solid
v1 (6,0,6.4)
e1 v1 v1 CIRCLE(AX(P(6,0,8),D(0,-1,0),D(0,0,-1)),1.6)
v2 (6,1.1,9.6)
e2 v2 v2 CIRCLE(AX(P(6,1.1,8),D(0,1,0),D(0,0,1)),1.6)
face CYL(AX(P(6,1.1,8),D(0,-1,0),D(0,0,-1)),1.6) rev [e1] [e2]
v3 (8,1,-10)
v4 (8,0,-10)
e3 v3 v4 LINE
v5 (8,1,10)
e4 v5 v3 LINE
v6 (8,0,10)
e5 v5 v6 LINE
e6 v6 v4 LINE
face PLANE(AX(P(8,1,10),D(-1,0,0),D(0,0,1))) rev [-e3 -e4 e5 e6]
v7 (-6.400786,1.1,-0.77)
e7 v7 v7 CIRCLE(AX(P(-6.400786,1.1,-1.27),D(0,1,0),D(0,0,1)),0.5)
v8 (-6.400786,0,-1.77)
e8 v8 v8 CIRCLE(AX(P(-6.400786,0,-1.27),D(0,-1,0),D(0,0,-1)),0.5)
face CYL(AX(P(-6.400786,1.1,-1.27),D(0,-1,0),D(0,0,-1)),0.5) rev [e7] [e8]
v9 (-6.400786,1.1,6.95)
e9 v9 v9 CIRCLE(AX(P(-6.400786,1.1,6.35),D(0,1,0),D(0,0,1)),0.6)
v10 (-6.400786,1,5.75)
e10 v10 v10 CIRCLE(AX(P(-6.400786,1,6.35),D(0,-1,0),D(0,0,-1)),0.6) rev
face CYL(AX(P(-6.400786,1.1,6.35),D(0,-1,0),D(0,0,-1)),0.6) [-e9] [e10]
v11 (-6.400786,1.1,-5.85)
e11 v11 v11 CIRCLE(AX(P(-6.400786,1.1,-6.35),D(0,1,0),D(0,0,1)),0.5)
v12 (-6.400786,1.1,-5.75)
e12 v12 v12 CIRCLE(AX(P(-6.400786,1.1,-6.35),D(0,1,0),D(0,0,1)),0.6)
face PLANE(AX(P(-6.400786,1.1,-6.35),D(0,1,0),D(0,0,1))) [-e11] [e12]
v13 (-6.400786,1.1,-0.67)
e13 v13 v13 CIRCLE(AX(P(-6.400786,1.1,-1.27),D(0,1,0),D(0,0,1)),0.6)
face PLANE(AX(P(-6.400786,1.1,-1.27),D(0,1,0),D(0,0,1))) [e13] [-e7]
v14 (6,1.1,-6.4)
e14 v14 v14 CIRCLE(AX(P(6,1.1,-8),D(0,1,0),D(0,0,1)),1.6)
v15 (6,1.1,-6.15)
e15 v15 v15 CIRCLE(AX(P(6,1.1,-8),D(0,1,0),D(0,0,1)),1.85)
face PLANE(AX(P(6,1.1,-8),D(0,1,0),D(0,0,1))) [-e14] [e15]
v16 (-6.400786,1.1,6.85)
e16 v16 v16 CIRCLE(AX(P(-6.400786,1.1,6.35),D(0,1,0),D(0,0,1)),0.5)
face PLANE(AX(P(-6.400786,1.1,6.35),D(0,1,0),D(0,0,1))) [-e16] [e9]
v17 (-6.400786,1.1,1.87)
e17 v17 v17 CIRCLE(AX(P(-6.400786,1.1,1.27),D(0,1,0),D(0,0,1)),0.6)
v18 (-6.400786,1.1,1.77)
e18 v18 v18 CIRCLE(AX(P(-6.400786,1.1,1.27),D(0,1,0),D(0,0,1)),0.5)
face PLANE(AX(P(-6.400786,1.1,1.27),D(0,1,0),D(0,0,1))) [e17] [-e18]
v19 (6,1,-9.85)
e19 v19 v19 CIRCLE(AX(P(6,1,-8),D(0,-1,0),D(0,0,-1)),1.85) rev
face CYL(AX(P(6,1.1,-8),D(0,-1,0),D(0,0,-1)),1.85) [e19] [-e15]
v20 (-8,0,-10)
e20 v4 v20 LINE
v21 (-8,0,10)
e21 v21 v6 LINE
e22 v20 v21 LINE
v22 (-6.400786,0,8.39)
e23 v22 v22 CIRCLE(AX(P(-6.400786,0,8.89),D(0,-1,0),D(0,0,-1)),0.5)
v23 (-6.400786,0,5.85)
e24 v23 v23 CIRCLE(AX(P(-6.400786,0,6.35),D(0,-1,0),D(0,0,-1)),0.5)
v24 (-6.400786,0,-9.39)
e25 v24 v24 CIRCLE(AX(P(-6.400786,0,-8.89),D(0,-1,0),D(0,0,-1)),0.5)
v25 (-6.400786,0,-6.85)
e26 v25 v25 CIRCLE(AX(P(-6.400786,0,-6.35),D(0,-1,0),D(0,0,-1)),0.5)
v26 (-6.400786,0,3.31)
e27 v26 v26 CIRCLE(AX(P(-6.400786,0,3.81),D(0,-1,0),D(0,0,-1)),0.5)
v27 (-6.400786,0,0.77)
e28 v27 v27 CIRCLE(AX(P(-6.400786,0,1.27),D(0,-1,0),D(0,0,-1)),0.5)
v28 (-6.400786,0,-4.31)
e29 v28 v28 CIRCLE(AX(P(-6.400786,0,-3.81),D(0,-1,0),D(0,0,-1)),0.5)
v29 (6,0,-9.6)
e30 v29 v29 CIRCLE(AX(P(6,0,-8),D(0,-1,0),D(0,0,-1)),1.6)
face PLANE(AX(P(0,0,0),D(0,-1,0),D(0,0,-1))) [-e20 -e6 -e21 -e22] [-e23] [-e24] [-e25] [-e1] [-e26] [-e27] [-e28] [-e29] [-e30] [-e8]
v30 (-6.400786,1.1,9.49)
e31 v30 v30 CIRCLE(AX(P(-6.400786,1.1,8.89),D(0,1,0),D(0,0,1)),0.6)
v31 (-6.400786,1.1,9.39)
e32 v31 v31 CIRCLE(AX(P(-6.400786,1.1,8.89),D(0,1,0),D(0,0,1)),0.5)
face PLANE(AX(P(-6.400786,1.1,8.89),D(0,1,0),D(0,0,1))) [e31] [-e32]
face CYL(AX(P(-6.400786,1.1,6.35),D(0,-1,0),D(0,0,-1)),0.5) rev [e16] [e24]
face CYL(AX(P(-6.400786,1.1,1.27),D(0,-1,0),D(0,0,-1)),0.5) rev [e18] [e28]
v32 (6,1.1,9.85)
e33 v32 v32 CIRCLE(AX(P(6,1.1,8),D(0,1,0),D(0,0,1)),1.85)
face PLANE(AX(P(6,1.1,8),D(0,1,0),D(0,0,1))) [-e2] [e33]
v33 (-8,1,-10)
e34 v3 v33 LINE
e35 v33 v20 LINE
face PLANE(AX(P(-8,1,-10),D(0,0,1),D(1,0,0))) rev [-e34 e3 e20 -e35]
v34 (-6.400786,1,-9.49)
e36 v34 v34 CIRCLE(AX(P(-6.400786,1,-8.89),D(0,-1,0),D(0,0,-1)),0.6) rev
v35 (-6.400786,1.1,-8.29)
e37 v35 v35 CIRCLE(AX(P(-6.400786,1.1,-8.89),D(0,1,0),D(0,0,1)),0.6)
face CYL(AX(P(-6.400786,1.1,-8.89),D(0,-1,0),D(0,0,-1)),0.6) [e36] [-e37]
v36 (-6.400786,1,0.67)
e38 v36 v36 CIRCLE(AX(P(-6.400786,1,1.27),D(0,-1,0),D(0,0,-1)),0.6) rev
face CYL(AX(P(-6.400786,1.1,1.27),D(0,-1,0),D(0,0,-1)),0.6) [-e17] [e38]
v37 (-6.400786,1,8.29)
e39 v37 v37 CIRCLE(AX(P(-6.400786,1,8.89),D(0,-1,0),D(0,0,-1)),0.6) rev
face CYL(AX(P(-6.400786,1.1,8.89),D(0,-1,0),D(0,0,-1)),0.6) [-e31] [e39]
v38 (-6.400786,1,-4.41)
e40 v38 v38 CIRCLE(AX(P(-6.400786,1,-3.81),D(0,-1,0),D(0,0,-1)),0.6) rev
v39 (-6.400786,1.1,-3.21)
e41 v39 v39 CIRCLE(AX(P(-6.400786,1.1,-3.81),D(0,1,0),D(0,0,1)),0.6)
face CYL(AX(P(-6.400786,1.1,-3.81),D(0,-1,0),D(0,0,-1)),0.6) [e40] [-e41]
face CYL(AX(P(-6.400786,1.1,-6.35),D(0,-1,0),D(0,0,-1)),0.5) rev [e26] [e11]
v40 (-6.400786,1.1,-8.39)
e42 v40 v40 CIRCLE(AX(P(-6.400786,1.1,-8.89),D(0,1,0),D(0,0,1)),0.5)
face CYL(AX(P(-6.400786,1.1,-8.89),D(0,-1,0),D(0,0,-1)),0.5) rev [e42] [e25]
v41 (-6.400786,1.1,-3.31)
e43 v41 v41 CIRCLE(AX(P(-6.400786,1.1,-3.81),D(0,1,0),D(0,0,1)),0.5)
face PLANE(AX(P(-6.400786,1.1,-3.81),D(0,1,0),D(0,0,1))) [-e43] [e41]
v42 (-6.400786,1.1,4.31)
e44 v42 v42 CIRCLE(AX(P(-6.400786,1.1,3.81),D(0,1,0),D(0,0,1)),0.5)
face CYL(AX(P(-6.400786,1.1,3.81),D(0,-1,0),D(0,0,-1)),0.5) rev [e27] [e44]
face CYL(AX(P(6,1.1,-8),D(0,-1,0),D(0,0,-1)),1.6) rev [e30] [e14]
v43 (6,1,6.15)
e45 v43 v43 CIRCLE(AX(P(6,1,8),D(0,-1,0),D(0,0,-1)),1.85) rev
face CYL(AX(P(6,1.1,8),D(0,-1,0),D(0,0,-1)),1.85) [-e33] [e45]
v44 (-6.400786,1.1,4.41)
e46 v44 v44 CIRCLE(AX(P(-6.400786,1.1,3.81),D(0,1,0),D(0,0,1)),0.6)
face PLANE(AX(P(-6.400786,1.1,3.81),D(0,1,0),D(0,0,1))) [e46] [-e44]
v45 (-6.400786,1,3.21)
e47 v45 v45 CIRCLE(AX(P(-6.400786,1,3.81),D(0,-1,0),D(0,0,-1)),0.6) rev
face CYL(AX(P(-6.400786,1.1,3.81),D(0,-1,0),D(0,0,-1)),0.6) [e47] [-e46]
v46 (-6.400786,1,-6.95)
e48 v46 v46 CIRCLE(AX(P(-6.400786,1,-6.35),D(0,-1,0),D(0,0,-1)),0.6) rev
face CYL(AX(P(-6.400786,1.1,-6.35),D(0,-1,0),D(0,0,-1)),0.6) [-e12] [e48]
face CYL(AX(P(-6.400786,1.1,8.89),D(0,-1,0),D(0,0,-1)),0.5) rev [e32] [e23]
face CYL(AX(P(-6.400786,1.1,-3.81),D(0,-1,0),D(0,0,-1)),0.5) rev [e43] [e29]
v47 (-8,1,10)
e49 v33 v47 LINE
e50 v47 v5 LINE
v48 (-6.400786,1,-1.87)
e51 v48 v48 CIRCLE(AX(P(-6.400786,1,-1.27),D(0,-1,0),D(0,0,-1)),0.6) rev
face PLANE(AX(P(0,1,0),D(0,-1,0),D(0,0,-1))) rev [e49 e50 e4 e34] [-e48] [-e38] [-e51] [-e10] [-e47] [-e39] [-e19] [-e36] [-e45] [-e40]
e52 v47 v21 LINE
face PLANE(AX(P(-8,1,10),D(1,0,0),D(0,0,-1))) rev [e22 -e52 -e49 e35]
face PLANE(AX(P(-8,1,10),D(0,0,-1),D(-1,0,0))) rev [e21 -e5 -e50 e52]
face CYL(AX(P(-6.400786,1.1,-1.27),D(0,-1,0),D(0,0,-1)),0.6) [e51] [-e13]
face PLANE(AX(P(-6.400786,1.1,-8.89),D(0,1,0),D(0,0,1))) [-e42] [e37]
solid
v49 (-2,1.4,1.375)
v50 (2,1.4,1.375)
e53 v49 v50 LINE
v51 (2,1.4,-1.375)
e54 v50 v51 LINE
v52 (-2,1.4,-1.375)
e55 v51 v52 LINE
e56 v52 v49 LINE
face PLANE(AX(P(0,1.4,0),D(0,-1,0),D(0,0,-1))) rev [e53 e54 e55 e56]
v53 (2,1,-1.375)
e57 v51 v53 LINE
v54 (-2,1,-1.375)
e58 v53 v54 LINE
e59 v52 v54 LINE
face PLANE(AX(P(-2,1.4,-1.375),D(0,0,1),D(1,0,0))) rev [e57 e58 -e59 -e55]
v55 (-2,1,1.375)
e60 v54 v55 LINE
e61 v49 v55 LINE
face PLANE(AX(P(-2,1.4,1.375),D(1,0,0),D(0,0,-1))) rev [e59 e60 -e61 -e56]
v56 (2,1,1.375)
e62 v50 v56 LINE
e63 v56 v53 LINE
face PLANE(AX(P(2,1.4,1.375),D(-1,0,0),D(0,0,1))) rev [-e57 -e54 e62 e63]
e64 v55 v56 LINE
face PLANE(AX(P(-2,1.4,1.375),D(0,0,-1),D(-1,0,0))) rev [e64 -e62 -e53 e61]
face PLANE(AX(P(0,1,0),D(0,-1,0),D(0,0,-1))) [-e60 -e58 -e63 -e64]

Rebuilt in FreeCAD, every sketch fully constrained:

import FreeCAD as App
import Part
import Sketcher

V = App.Vector
Q = App.Units.Quantity


def add_polygon(sketch, points):
    """Adds a closed chain of lines whose ends are joined by coincident constraints."""
    first, n = sketch.GeometryCount, len(points)
    for a, b in zip(points, points[1:] + points[:1]):
        sketch.addGeometry(Part.LineSegment(App.Vector(*a, 0), App.Vector(*b, 0)), False)
    for i in range(n):
        sketch.addConstraint(Sketcher.Constraint("Coincident", first + i, 2, first + (i + 1) % n, 1))

doc = App.newDocument("Part")
body = doc.addObject("PartDesign::Body", "Body")

# Sketch on XZ plane
sketch1 = body.newObject("Sketcher::SketchObject", "Sketch")
sketch1.AttachmentSupport = (doc.getObject("XZ_Plane"), [""])
sketch1.MapMode = "FlatFace"
add_polygon(sketch1, [(-8, -10), (-8, 10), (8, 10), (8, -10)])  # lines 0-3
sketch1.addConstraint(Sketcher.Constraint("Vertical", 0))
sketch1.addConstraint(Sketcher.Constraint("Horizontal", 1))
sketch1.addConstraint(Sketcher.Constraint("Vertical", 2))
sketch1.addConstraint(Sketcher.Constraint("Horizontal", 3))
sketch1.addConstraint(Sketcher.Constraint("Symmetric", 0, 2, 2, 2, -1, 1))
sketch1.addConstraint(Sketcher.Constraint("DistanceX", 1, 1, 1, 2, Q("16 mm")))
sketch1.addConstraint(Sketcher.Constraint("DistanceY", 0, 1, 0, 2, Q("20 mm")))
pad1 = body.newObject("PartDesign::Pad", "Pad")
pad1.Profile = sketch1
pad1.Length = 1
pad1.Reversed = True

# Sketch on XZ plane
sketch2 = body.newObject("Sketcher::SketchObject", "Sketch001")
sketch2.AttachmentSupport = (doc.getObject("XZ_Plane"), [""])
sketch2.MapMode = "FlatFace"
sketch2.AttachmentOffset = App.Placement(V(0, 0, -1), App.Rotation())
sketch2.addGeometry(Part.Circle(V(-6.4, 8.9, 0), V(0, 0, 1), 0.6), False)
sketch2.addGeometry(Part.Circle(V(-6.4, 8.9, 0), V(0, 0, 1), 0.5), False)
sketch2.addGeometry(Part.Circle(V(-6.4, 6.3, 0), V(0, 0, 1), 0.6), False)
sketch2.addGeometry(Part.Circle(V(-6.4, 6.3, 0), V(0, 0, 1), 0.5), False)
sketch2.addGeometry(Part.Circle(V(-6.4, 3.8, 0), V(0, 0, 1), 0.6), False)
sketch2.addGeometry(Part.Circle(V(-6.4, 3.8, 0), V(0, 0, 1), 0.5), False)
sketch2.addGeometry(Part.Circle(V(-6.4, 1.3, 0), V(0, 0, 1), 0.6), False)
sketch2.addGeometry(Part.Circle(V(-6.4, 1.3, 0), V(0, 0, 1), 0.5), False)
sketch2.addGeometry(Part.Circle(V(-6.4, -1.3, 0), V(0, 0, 1), 0.6), False)
sketch2.addGeometry(Part.Circle(V(-6.4, -1.3, 0), V(0, 0, 1), 0.5), False)
sketch2.addGeometry(Part.Circle(V(-6.4, -3.8, 0), V(0, 0, 1), 0.6), False)
sketch2.addGeometry(Part.Circle(V(-6.4, -3.8, 0), V(0, 0, 1), 0.5), False)
sketch2.addGeometry(Part.Circle(V(-6.4, -6.3, 0), V(0, 0, 1), 0.6), False)
sketch2.addGeometry(Part.Circle(V(-6.4, -6.3, 0), V(0, 0, 1), 0.5), False)
sketch2.addGeometry(Part.Circle(V(-6.4, -8.9, 0), V(0, 0, 1), 0.6), False)
sketch2.addGeometry(Part.Circle(V(-6.4, -8.9, 0), V(0, 0, 1), 0.5), False)
sketch2.addConstraint(Sketcher.Constraint("Coincident", 1, 3, 0, 3))
sketch2.addConstraint(Sketcher.Constraint("Coincident", 3, 3, 2, 3))
sketch2.addConstraint(Sketcher.Constraint("Coincident", 5, 3, 4, 3))
sketch2.addConstraint(Sketcher.Constraint("Coincident", 7, 3, 6, 3))
sketch2.addConstraint(Sketcher.Constraint("Coincident", 9, 3, 8, 3))
sketch2.addConstraint(Sketcher.Constraint("Coincident", 11, 3, 10, 3))
sketch2.addConstraint(Sketcher.Constraint("Coincident", 13, 3, 12, 3))
sketch2.addConstraint(Sketcher.Constraint("Coincident", 15, 3, 14, 3))
sketch2.addConstraint(Sketcher.Constraint("Equal", 0, 2))
sketch2.addConstraint(Sketcher.Constraint("Equal", 1, 3))
sketch2.addConstraint(Sketcher.Constraint("Equal", 2, 4))
sketch2.addConstraint(Sketcher.Constraint("Equal", 3, 5))
sketch2.addConstraint(Sketcher.Constraint("Equal", 4, 6))
sketch2.addConstraint(Sketcher.Constraint("Equal", 5, 7))
sketch2.addConstraint(Sketcher.Constraint("Equal", 6, 8))
sketch2.addConstraint(Sketcher.Constraint("Equal", 7, 9))
sketch2.addConstraint(Sketcher.Constraint("Equal", 8, 10))
sketch2.addConstraint(Sketcher.Constraint("Equal", 9, 11))
sketch2.addConstraint(Sketcher.Constraint("Equal", 10, 12))
sketch2.addConstraint(Sketcher.Constraint("Equal", 11, 13))
sketch2.addConstraint(Sketcher.Constraint("Equal", 12, 14))
sketch2.addConstraint(Sketcher.Constraint("Equal", 13, 15))
sketch2.addConstraint(Sketcher.Constraint("Symmetric", 6, 3, 8, 3, -1))
sketch2.addConstraint(Sketcher.Constraint("Symmetric", 4, 3, 10, 3, -1))
sketch2.addConstraint(Sketcher.Constraint("Symmetric", 2, 3, 12, 3, -1))
sketch2.addConstraint(Sketcher.Constraint("Symmetric", 0, 3, 14, 3, -1))
sketch2.addConstraint(Sketcher.Constraint("Vertical", 1, 3, 2, 3))
sketch2.addConstraint(Sketcher.Constraint("Vertical", 3, 3, 4, 3))
sketch2.addConstraint(Sketcher.Constraint("Vertical", 5, 3, 6, 3))
sketch2.addConstraint(Sketcher.Constraint("Diameter", 1, Q("1 mm")))
sketch2.addConstraint(Sketcher.Constraint("Diameter", 0, Q("1.2 mm")))
sketch2.addConstraint(Sketcher.Constraint("DistanceY", -1, 1, 0, 3, Q("8.89 mm")))
sketch2.addConstraint(Sketcher.Constraint("DistanceY", -1, 1, 2, 3, Q("6.35 mm")))
sketch2.addConstraint(Sketcher.Constraint("DistanceY", -1, 1, 4, 3, Q("3.81 mm")))
sketch2.addConstraint(Sketcher.Constraint("DistanceY", -1, 1, 6, 3, Q("1.27 mm")))
sketch2.addConstraint(Sketcher.Constraint("DistanceX", 0, 3, -1, 1, Q("6.400786 mm")))
pad2 = body.newObject("PartDesign::Pad", "Pad001")
pad2.Profile = sketch2
pad2.Length = 0.1
pad2.Reversed = True

# Sketch on XZ plane
sketch3 = body.newObject("Sketcher::SketchObject", "Sketch002")
sketch3.AttachmentSupport = (doc.getObject("XZ_Plane"), [""])
sketch3.MapMode = "FlatFace"
sketch3.AttachmentOffset = App.Placement(V(0, 0, -1), App.Rotation())
sketch3.addGeometry(Part.Circle(V(-6.4, 8.9, 0), V(0, 0, 1), 0.5), False)
sketch3.addGeometry(Part.Circle(V(-6.4, 6.3, 0), V(0, 0, 1), 0.5), False)
sketch3.addGeometry(Part.Circle(V(-6.4, 3.8, 0), V(0, 0, 1), 0.5), False)
sketch3.addGeometry(Part.Circle(V(-6.4, 1.3, 0), V(0, 0, 1), 0.5), False)
sketch3.addGeometry(Part.Circle(V(-6.4, -1.3, 0), V(0, 0, 1), 0.5), False)
sketch3.addGeometry(Part.Circle(V(-6.4, -3.8, 0), V(0, 0, 1), 0.5), False)
sketch3.addGeometry(Part.Circle(V(-6.4, -6.3, 0), V(0, 0, 1), 0.5), False)
sketch3.addGeometry(Part.Circle(V(-6.4, -8.9, 0), V(0, 0, 1), 0.5), False)
sketch3.addConstraint(Sketcher.Constraint("Equal", 0, 1))
sketch3.addConstraint(Sketcher.Constraint("Equal", 1, 2))
sketch3.addConstraint(Sketcher.Constraint("Equal", 2, 3))
sketch3.addConstraint(Sketcher.Constraint("Equal", 3, 4))
sketch3.addConstraint(Sketcher.Constraint("Equal", 4, 5))
sketch3.addConstraint(Sketcher.Constraint("Equal", 5, 6))
sketch3.addConstraint(Sketcher.Constraint("Equal", 6, 7))
sketch3.addConstraint(Sketcher.Constraint("Symmetric", 3, 3, 4, 3, -1))
sketch3.addConstraint(Sketcher.Constraint("Symmetric", 2, 3, 5, 3, -1))
sketch3.addConstraint(Sketcher.Constraint("Symmetric", 1, 3, 6, 3, -1))
sketch3.addConstraint(Sketcher.Constraint("Symmetric", 0, 3, 7, 3, -1))
sketch3.addConstraint(Sketcher.Constraint("Vertical", 0, 3, 1, 3))
sketch3.addConstraint(Sketcher.Constraint("Vertical", 1, 3, 2, 3))
sketch3.addConstraint(Sketcher.Constraint("Vertical", 2, 3, 3, 3))
sketch3.addConstraint(Sketcher.Constraint("Diameter", 0, Q("1 mm")))
sketch3.addConstraint(Sketcher.Constraint("DistanceY", 5, 3, 0, 3, Q("12.7 mm")))
sketch3.addConstraint(Sketcher.Constraint("DistanceY", 6, 3, 1, 3, Q("12.7 mm")))
sketch3.addConstraint(Sketcher.Constraint("DistanceY", -1, 1, 0, 3, Q("8.89 mm")))
sketch3.addConstraint(Sketcher.Constraint("DistanceY", -1, 1, 3, 3, Q("1.27 mm")))
sketch3.addConstraint(Sketcher.Constraint("DistanceX", 0, 3, -1, 1, Q("6.400786 mm")))
pocket1 = body.newObject("PartDesign::Pocket", "Pocket")
pocket1.Profile = sketch3
pocket1.Length = 20.1
pocket1.Reversed = True

# Sketch on XZ plane
sketch4 = body.newObject("Sketcher::SketchObject", "Sketch003")
sketch4.AttachmentSupport = (doc.getObject("XZ_Plane"), [""])
sketch4.MapMode = "FlatFace"
sketch4.AttachmentOffset = App.Placement(V(0, 0, -1), App.Rotation())
sketch4.addGeometry(Part.Circle(V(6, 8, 0), V(0, 0, 1), 1.9), False)
sketch4.addGeometry(Part.Circle(V(6, 8, 0), V(0, 0, 1), 1.6), False)
sketch4.addGeometry(Part.Circle(V(6, -8, 0), V(0, 0, 1), 1.9), False)
sketch4.addGeometry(Part.Circle(V(6, -8, 0), V(0, 0, 1), 1.6), False)
sketch4.addConstraint(Sketcher.Constraint("Coincident", 1, 3, 0, 3))
sketch4.addConstraint(Sketcher.Constraint("Coincident", 3, 3, 2, 3))
sketch4.addConstraint(Sketcher.Constraint("Equal", 0, 2))
sketch4.addConstraint(Sketcher.Constraint("Equal", 1, 3))
sketch4.addConstraint(Sketcher.Constraint("Symmetric", 0, 3, 2, 3, -1))
sketch4.addConstraint(Sketcher.Constraint("Diameter", 0, Q("3.7 mm")))
sketch4.addConstraint(Sketcher.Constraint("Diameter", 1, Q("3.2 mm")))
sketch4.addConstraint(Sketcher.Constraint("DistanceX", -1, 1, 0, 3, Q("6 mm")))
sketch4.addConstraint(Sketcher.Constraint("DistanceY", -1, 1, 0, 3, Q("8 mm")))
pad3 = body.newObject("PartDesign::Pad", "Pad002")
pad3.Profile = sketch4
pad3.Length = 0.1
pad3.Reversed = True

# Sketch on XZ plane
sketch5 = body.newObject("Sketcher::SketchObject", "Sketch004")
sketch5.AttachmentSupport = (doc.getObject("XZ_Plane"), [""])
sketch5.MapMode = "FlatFace"
sketch5.AttachmentOffset = App.Placement(V(0, 0, -1), App.Rotation())
sketch5.addGeometry(Part.Circle(V(6, -8, 0), V(0, 0, 1), 1.6), False)
sketch5.addGeometry(Part.Circle(V(6, 8, 0), V(0, 0, 1), 1.6), False)
sketch5.addConstraint(Sketcher.Constraint("Equal", 0, 1))
sketch5.addConstraint(Sketcher.Constraint("Symmetric", 0, 3, 1, 3, -1))
sketch5.addConstraint(Sketcher.Constraint("Diameter", 0, Q("3.2 mm")))
sketch5.addConstraint(Sketcher.Constraint("DistanceX", -1, 1, 0, 3, Q("6 mm")))
sketch5.addConstraint(Sketcher.Constraint("DistanceY", 0, 3, -1, 1, Q("8 mm")))
pocket2 = body.newObject("PartDesign::Pocket", "Pocket001")
pocket2.Profile = sketch5
pocket2.Length = 10.1
pocket2.Reversed = True
body2 = doc.addObject("PartDesign::Body", "Body001")

# Sketch on XZ plane
sketch6 = body2.newObject("Sketcher::SketchObject", "Sketch005")
sketch6.AttachmentSupport = (doc.getObject("XZ_Plane001"), [""])
sketch6.MapMode = "FlatFace"
sketch6.AttachmentOffset = App.Placement(V(0, 0, -1), App.Rotation())
add_polygon(sketch6, [(-2, -1.4), (-2, 1.4), (2, 1.4), (2, -1.4)])  # lines 0-3
sketch6.addConstraint(Sketcher.Constraint("Vertical", 0))
sketch6.addConstraint(Sketcher.Constraint("Horizontal", 1))
sketch6.addConstraint(Sketcher.Constraint("Vertical", 2))
sketch6.addConstraint(Sketcher.Constraint("Horizontal", 3))
sketch6.addConstraint(Sketcher.Constraint("Symmetric", 0, 2, 2, 2, -1, 1))
sketch6.addConstraint(Sketcher.Constraint("DistanceX", 1, 1, 1, 2, Q("4 mm")))
sketch6.addConstraint(Sketcher.Constraint("DistanceY", 0, 1, 0, 2, Q("2.75 mm")))
pad4 = body2.newObject("PartDesign::Pad", "Pad003")
pad4.Profile = sketch6
pad4.Length = 0.4
pad4.Reversed = True

doc.recompute()
